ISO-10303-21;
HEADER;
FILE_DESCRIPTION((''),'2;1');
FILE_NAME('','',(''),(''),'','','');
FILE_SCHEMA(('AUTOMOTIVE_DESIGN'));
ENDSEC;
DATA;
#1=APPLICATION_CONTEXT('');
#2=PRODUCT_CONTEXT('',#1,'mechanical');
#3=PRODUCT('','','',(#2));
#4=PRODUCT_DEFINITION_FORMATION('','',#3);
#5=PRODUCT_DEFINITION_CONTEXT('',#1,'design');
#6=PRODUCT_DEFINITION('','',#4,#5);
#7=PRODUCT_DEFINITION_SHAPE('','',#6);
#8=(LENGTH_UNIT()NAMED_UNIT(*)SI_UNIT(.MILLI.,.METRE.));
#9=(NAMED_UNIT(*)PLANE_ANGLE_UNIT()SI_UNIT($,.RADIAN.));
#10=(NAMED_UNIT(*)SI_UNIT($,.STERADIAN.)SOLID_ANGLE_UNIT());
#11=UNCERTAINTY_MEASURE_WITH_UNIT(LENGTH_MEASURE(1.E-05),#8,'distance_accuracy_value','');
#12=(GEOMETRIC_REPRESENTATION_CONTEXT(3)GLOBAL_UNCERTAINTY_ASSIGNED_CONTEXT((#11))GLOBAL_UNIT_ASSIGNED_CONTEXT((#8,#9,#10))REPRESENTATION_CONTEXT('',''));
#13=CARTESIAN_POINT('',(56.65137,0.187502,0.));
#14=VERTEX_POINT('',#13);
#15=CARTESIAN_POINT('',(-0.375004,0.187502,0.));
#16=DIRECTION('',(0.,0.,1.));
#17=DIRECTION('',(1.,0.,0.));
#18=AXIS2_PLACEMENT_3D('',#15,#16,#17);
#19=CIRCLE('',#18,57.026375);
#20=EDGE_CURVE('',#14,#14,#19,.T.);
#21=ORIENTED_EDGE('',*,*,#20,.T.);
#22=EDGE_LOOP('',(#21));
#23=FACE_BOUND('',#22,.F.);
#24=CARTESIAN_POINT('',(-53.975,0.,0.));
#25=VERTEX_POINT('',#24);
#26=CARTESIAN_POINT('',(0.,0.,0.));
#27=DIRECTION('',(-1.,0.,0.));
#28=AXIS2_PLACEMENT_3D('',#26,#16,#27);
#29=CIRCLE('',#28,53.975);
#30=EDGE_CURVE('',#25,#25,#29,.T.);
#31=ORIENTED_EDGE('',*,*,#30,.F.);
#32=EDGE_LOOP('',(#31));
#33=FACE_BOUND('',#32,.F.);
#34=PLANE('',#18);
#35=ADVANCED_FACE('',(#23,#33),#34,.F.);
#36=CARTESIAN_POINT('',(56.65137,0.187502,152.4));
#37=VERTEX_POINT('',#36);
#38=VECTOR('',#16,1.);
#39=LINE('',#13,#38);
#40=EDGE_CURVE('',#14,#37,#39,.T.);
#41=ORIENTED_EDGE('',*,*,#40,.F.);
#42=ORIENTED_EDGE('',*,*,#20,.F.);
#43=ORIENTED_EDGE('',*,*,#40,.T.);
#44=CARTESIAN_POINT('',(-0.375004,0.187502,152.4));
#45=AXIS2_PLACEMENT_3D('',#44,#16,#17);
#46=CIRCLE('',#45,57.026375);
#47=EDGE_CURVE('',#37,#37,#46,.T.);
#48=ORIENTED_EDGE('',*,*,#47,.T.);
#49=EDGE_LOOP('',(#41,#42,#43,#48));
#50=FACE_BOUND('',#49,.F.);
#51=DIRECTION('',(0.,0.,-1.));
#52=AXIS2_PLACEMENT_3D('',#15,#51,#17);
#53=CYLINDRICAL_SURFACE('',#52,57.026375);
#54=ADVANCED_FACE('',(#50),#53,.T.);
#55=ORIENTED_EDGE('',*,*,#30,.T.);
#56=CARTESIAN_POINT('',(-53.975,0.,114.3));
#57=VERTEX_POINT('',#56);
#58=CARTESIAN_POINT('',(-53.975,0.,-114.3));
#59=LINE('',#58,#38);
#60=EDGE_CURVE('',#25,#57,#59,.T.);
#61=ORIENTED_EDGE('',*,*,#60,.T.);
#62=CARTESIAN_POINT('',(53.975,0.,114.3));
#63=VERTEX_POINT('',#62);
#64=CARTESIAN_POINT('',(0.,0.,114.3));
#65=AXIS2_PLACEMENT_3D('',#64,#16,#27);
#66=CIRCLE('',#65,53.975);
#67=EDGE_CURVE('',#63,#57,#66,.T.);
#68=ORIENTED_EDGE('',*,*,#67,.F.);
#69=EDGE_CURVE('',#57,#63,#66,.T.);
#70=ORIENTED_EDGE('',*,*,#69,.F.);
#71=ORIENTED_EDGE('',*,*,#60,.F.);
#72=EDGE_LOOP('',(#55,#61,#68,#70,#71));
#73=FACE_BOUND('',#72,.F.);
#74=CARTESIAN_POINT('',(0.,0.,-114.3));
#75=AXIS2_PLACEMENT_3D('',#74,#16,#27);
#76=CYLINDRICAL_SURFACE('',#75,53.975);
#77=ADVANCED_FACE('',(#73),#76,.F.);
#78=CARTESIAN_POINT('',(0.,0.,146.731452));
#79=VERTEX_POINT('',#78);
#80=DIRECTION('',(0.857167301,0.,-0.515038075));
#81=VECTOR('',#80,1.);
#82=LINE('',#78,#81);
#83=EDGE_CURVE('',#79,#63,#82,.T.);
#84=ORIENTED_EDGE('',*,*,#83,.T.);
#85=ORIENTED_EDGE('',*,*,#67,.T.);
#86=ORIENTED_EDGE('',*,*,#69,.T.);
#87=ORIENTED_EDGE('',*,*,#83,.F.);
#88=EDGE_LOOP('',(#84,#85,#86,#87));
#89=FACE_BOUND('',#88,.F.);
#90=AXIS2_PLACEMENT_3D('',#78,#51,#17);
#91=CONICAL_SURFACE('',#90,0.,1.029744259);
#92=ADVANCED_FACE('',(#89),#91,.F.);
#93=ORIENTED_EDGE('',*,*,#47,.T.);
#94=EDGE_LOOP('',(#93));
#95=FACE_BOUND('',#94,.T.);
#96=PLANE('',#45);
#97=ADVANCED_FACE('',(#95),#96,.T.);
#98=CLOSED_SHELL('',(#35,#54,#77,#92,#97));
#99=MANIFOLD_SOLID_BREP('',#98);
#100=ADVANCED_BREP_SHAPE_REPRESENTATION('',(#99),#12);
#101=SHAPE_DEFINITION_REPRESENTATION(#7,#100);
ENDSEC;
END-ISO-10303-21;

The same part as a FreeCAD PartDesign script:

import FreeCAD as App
import Part
import Sketcher
from FreeCAD import Vector
Q = App.Units.Quantity

doc = App.newDocument("Part")
body = doc.addObject("PartDesign::Body", "Body")

# Sketch on XY plane
sketch1 = body.newObject("Sketcher::SketchObject", "Sketch")
sketch1.AttachmentSupport = (doc.getObject("XY_Plane"), [""])
sketch1.MapMode = "FlatFace"
sketch1.addGeometry(Part.Circle(Vector(0, 0, 0), Vector(0, 0, 1), 57), False)
sketch1.addConstraint([
    Sketcher.Constraint("Diameter", 0, 114.052749),
    Sketcher.Constraint("DistanceY", -1, 1, 0, 3, 0.187502),
    Sketcher.Constraint("DistanceX", 0, 3, -1, 1, 0.375004),
])
pad1 = body.newObject("PartDesign::Pad", "Pad")
pad1.Profile = sketch1
pad1.Length = Q("6 in")

# Sketch on XY plane
sketch2 = body.newObject("Sketcher::SketchObject", "Sketch001")
sketch2.AttachmentSupport = (doc.getObject("XY_Plane"), [""])
sketch2.MapMode = "FlatFace"
sketch2.addGeometry(Part.Circle(Vector(0, 0, 0), Vector(0, 0, 1), 54), False)
sketch2.addConstraint([
    Sketcher.Constraint("Coincident", 0, 3, -1, 1),
    Sketcher.Constraint("Diameter", 0, Q("4.25 in")),
])
doc.recompute()
hole = body.newObject("PartDesign::Hole", "Hole")
hole.Profile = sketch2
hole.ThreadType = "None"
hole.Diameter = Q("4.25 in")
hole.DepthType = "Dimension"
hole.Depth = Q("4.5 in")
hole.DrillPoint = "Angled"
hole.DrillPointAngle = 118
hole.Reversed = True

doc.recompute()
